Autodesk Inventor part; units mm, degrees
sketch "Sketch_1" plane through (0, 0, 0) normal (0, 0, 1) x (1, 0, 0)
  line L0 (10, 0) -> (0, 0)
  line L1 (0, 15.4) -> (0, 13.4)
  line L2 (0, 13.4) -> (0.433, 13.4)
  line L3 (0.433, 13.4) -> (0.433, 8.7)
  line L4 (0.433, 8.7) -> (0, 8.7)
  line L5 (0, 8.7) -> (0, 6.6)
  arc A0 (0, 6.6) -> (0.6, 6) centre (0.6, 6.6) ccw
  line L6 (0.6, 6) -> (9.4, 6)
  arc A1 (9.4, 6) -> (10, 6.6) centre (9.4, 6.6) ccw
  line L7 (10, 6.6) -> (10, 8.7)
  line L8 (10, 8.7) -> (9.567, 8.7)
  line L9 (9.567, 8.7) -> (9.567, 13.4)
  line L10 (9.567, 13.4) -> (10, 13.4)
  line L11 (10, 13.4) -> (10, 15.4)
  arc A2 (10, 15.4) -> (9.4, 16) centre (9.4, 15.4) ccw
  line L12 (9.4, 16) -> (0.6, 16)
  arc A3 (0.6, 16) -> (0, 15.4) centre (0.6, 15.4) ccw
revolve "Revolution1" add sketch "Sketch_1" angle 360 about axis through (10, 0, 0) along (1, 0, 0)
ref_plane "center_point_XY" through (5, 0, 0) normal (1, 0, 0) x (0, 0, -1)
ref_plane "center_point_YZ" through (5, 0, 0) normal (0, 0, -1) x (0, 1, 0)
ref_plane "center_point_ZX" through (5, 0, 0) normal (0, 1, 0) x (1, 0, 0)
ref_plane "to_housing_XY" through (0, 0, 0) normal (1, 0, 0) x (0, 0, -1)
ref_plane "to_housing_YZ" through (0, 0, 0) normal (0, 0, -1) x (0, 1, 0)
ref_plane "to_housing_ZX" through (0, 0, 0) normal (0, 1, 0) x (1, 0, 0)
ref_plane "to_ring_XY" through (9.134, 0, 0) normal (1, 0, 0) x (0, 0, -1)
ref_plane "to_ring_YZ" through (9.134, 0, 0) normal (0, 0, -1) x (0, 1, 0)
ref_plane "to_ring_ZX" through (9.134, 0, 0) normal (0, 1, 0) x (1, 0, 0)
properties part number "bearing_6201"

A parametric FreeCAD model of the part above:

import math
import FreeCAD as App
import Part
import Sketcher
Q = App.Units.Quantity

doc = App.newDocument("Part")
body = doc.addObject("PartDesign::Body", "Body")

# Sketch on XY plane
sketch1 = doc.addObject("Sketcher::SketchObject", "Sketch")
body.addObject(sketch1)
sketch1.AttachmentSupport = (doc.XY_Plane, [""])
sketch1.MapMode = "FlatFace"
sketch1.addGeometry(Part.ArcOfCircle(Part.Circle(App.Vector(0.6, 15.4, 0), App.Vector(0, 0, 1), 0.6), math.radians(90), math.radians(180)), False)
sketch1.addGeometry(Part.LineSegment(App.Vector(0, 15.4, 0), App.Vector(0, 13.4, 0)), False)
sketch1.addGeometry(Part.LineSegment(App.Vector(0, 13.4, 0), App.Vector(0.43, 13.4, 0)), False)
sketch1.addGeometry(Part.LineSegment(App.Vector(0.43, 13.4, 0), App.Vector(0.43, 8.7, 0)), False)
sketch1.addGeometry(Part.LineSegment(App.Vector(0.43, 8.7, 0), App.Vector(0, 8.7, 0)), False)
sketch1.addGeometry(Part.LineSegment(App.Vector(0, 8.7, 0), App.Vector(0, 6.6, 0)), False)
sketch1.addGeometry(Part.ArcOfCircle(Part.Circle(App.Vector(0.6, 6.6, 0), App.Vector(0, 0, 1), 0.6), math.radians(180), math.radians(270)), False)
sketch1.addGeometry(Part.LineSegment(App.Vector(0.6, 6, 0), App.Vector(9.4, 6, 0)), False)
sketch1.addGeometry(Part.ArcOfCircle(Part.Circle(App.Vector(9.4, 6.6, 0), App.Vector(0, 0, 1), 0.6), math.radians(-90), math.radians(0)), False)
sketch1.addGeometry(Part.LineSegment(App.Vector(10, 6.6, 0), App.Vector(10, 8.7, 0)), False)
sketch1.addGeometry(Part.LineSegment(App.Vector(10, 8.7, 0), App.Vector(9.57, 8.7, 0)), False)
sketch1.addGeometry(Part.LineSegment(App.Vector(9.57, 8.7, 0), App.Vector(9.57, 13.4, 0)), False)
sketch1.addGeometry(Part.LineSegment(App.Vector(9.57, 13.4, 0), App.Vector(10, 13.4, 0)), False)
sketch1.addGeometry(Part.LineSegment(App.Vector(10, 13.4, 0), App.Vector(10, 15.4, 0)), False)
sketch1.addGeometry(Part.ArcOfCircle(Part.Circle(App.Vector(9.4, 15.4, 0), App.Vector(0, 0, 1), 0.6), math.radians(0), math.radians(90)), False)
sketch1.addGeometry(Part.LineSegment(App.Vector(9.4, 16, 0), App.Vector(0.6, 16, 0)), False)
sketch1.addConstraint(Sketcher.Constraint("Tangent", 0, 2, 1, 1))
sketch1.addConstraint(Sketcher.Constraint("Coincident", 1, 2, 2, 1))
sketch1.addConstraint(Sketcher.Constraint("Coincident", 2, 2, 3, 1))
sketch1.addConstraint(Sketcher.Constraint("Coincident", 3, 2, 4, 1))
sketch1.addConstraint(Sketcher.Constraint("Coincident", 4, 2, 5, 1))
sketch1.addConstraint(Sketcher.Constraint("Tangent", 5, 2, 6, 1))
sketch1.addConstraint(Sketcher.Constraint("Tangent", 6, 2, 7, 1))
sketch1.addConstraint(Sketcher.Constraint("Tangent", 7, 2, 8, 1))
sketch1.addConstraint(Sketcher.Constraint("Tangent", 8, 2, 9, 1))
sketch1.addConstraint(Sketcher.Constraint("Coincident", 9, 2, 10, 1))
sketch1.addConstraint(Sketcher.Constraint("Coincident", 10, 2, 11, 1))
sketch1.addConstraint(Sketcher.Constraint("Coincident", 11, 2, 12, 1))
sketch1.addConstraint(Sketcher.Constraint("Coincident", 12, 2, 13, 1))
sketch1.addConstraint(Sketcher.Constraint("Tangent", 13, 2, 14, 1))
sketch1.addConstraint(Sketcher.Constraint("Tangent", 14, 2, 15, 1))
sketch1.addConstraint(Sketcher.Constraint("Tangent", 15, 2, 0, 1))
sketch1.addConstraint(Sketcher.Constraint("Vertical", 1))
sketch1.addConstraint(Sketcher.Constraint("Horizontal", 2))
sketch1.addConstraint(Sketcher.Constraint("Vertical", 3))
sketch1.addConstraint(Sketcher.Constraint("Horizontal", 4))
sketch1.addConstraint(Sketcher.Constraint("Vertical", 5))
sketch1.addConstraint(Sketcher.Constraint("Horizontal", 7))
sketch1.addConstraint(Sketcher.Constraint("Vertical", 9))
sketch1.addConstraint(Sketcher.Constraint("Horizontal", 10))
sketch1.addConstraint(Sketcher.Constraint("Vertical", 11))
sketch1.addConstraint(Sketcher.Constraint("Horizontal", 12))
sketch1.addConstraint(Sketcher.Constraint("Vertical", 13))
sketch1.addConstraint(Sketcher.Constraint("Horizontal", 15))
sketch1.addConstraint(Sketcher.Constraint("Equal", 0, 6))
sketch1.addConstraint(Sketcher.Constraint("Equal", 6, 8))
sketch1.addConstraint(Sketcher.Constraint("Equal", 8, 14))
sketch1.addConstraint(Sketcher.Constraint("PointOnObject", 0, 2, -2))
sketch1.addConstraint(Sketcher.Constraint("PointOnObject", 4, 2, -2))
sketch1.addConstraint(Sketcher.Constraint("Horizontal", 4, 2, 9, 2))
sketch1.addConstraint(Sketcher.Constraint("Horizontal", 2, 2, 11, 2))
sketch1.addConstraint(Sketcher.Constraint("Vertical", 8, 3, 14, 3))
sketch1.addConstraint(Sketcher.Constraint("Equal", 4, 10))
sketch1.addConstraint(Sketcher.Constraint("Radius", 0, Q("0.6 mm")))
sketch1.addConstraint(Sketcher.Constraint("DistanceY", 1, 2, 1, 1, Q("2 mm")))
sketch1.addConstraint(Sketcher.Constraint("DistanceX", 7, 1, 7, 2, Q("8.8 mm")))
sketch1.addConstraint(Sketcher.Constraint("DistanceY", 3, 2, 3, 1, Q("4.7 mm")))
sketch1.addConstraint(Sketcher.Constraint("DistanceY", 5, 2, 5, 1, Q("2.1 mm")))
sketch1.addConstraint(Sketcher.Constraint("DistanceY", -1, 1, 6, 2, Q("6 mm")))
sketch1.addConstraint(Sketcher.Constraint("DistanceX", 2, 1, 2, 2, Q("0.433 mm")))
revolution = doc.addObject("PartDesign::Revolution", "Revolution")
body.addObject(revolution)
revolution.Profile = sketch1
revolution.ReferenceAxis = (sketch1, ["H_Axis"])
revolution.Angle = 360

doc.recompute()
